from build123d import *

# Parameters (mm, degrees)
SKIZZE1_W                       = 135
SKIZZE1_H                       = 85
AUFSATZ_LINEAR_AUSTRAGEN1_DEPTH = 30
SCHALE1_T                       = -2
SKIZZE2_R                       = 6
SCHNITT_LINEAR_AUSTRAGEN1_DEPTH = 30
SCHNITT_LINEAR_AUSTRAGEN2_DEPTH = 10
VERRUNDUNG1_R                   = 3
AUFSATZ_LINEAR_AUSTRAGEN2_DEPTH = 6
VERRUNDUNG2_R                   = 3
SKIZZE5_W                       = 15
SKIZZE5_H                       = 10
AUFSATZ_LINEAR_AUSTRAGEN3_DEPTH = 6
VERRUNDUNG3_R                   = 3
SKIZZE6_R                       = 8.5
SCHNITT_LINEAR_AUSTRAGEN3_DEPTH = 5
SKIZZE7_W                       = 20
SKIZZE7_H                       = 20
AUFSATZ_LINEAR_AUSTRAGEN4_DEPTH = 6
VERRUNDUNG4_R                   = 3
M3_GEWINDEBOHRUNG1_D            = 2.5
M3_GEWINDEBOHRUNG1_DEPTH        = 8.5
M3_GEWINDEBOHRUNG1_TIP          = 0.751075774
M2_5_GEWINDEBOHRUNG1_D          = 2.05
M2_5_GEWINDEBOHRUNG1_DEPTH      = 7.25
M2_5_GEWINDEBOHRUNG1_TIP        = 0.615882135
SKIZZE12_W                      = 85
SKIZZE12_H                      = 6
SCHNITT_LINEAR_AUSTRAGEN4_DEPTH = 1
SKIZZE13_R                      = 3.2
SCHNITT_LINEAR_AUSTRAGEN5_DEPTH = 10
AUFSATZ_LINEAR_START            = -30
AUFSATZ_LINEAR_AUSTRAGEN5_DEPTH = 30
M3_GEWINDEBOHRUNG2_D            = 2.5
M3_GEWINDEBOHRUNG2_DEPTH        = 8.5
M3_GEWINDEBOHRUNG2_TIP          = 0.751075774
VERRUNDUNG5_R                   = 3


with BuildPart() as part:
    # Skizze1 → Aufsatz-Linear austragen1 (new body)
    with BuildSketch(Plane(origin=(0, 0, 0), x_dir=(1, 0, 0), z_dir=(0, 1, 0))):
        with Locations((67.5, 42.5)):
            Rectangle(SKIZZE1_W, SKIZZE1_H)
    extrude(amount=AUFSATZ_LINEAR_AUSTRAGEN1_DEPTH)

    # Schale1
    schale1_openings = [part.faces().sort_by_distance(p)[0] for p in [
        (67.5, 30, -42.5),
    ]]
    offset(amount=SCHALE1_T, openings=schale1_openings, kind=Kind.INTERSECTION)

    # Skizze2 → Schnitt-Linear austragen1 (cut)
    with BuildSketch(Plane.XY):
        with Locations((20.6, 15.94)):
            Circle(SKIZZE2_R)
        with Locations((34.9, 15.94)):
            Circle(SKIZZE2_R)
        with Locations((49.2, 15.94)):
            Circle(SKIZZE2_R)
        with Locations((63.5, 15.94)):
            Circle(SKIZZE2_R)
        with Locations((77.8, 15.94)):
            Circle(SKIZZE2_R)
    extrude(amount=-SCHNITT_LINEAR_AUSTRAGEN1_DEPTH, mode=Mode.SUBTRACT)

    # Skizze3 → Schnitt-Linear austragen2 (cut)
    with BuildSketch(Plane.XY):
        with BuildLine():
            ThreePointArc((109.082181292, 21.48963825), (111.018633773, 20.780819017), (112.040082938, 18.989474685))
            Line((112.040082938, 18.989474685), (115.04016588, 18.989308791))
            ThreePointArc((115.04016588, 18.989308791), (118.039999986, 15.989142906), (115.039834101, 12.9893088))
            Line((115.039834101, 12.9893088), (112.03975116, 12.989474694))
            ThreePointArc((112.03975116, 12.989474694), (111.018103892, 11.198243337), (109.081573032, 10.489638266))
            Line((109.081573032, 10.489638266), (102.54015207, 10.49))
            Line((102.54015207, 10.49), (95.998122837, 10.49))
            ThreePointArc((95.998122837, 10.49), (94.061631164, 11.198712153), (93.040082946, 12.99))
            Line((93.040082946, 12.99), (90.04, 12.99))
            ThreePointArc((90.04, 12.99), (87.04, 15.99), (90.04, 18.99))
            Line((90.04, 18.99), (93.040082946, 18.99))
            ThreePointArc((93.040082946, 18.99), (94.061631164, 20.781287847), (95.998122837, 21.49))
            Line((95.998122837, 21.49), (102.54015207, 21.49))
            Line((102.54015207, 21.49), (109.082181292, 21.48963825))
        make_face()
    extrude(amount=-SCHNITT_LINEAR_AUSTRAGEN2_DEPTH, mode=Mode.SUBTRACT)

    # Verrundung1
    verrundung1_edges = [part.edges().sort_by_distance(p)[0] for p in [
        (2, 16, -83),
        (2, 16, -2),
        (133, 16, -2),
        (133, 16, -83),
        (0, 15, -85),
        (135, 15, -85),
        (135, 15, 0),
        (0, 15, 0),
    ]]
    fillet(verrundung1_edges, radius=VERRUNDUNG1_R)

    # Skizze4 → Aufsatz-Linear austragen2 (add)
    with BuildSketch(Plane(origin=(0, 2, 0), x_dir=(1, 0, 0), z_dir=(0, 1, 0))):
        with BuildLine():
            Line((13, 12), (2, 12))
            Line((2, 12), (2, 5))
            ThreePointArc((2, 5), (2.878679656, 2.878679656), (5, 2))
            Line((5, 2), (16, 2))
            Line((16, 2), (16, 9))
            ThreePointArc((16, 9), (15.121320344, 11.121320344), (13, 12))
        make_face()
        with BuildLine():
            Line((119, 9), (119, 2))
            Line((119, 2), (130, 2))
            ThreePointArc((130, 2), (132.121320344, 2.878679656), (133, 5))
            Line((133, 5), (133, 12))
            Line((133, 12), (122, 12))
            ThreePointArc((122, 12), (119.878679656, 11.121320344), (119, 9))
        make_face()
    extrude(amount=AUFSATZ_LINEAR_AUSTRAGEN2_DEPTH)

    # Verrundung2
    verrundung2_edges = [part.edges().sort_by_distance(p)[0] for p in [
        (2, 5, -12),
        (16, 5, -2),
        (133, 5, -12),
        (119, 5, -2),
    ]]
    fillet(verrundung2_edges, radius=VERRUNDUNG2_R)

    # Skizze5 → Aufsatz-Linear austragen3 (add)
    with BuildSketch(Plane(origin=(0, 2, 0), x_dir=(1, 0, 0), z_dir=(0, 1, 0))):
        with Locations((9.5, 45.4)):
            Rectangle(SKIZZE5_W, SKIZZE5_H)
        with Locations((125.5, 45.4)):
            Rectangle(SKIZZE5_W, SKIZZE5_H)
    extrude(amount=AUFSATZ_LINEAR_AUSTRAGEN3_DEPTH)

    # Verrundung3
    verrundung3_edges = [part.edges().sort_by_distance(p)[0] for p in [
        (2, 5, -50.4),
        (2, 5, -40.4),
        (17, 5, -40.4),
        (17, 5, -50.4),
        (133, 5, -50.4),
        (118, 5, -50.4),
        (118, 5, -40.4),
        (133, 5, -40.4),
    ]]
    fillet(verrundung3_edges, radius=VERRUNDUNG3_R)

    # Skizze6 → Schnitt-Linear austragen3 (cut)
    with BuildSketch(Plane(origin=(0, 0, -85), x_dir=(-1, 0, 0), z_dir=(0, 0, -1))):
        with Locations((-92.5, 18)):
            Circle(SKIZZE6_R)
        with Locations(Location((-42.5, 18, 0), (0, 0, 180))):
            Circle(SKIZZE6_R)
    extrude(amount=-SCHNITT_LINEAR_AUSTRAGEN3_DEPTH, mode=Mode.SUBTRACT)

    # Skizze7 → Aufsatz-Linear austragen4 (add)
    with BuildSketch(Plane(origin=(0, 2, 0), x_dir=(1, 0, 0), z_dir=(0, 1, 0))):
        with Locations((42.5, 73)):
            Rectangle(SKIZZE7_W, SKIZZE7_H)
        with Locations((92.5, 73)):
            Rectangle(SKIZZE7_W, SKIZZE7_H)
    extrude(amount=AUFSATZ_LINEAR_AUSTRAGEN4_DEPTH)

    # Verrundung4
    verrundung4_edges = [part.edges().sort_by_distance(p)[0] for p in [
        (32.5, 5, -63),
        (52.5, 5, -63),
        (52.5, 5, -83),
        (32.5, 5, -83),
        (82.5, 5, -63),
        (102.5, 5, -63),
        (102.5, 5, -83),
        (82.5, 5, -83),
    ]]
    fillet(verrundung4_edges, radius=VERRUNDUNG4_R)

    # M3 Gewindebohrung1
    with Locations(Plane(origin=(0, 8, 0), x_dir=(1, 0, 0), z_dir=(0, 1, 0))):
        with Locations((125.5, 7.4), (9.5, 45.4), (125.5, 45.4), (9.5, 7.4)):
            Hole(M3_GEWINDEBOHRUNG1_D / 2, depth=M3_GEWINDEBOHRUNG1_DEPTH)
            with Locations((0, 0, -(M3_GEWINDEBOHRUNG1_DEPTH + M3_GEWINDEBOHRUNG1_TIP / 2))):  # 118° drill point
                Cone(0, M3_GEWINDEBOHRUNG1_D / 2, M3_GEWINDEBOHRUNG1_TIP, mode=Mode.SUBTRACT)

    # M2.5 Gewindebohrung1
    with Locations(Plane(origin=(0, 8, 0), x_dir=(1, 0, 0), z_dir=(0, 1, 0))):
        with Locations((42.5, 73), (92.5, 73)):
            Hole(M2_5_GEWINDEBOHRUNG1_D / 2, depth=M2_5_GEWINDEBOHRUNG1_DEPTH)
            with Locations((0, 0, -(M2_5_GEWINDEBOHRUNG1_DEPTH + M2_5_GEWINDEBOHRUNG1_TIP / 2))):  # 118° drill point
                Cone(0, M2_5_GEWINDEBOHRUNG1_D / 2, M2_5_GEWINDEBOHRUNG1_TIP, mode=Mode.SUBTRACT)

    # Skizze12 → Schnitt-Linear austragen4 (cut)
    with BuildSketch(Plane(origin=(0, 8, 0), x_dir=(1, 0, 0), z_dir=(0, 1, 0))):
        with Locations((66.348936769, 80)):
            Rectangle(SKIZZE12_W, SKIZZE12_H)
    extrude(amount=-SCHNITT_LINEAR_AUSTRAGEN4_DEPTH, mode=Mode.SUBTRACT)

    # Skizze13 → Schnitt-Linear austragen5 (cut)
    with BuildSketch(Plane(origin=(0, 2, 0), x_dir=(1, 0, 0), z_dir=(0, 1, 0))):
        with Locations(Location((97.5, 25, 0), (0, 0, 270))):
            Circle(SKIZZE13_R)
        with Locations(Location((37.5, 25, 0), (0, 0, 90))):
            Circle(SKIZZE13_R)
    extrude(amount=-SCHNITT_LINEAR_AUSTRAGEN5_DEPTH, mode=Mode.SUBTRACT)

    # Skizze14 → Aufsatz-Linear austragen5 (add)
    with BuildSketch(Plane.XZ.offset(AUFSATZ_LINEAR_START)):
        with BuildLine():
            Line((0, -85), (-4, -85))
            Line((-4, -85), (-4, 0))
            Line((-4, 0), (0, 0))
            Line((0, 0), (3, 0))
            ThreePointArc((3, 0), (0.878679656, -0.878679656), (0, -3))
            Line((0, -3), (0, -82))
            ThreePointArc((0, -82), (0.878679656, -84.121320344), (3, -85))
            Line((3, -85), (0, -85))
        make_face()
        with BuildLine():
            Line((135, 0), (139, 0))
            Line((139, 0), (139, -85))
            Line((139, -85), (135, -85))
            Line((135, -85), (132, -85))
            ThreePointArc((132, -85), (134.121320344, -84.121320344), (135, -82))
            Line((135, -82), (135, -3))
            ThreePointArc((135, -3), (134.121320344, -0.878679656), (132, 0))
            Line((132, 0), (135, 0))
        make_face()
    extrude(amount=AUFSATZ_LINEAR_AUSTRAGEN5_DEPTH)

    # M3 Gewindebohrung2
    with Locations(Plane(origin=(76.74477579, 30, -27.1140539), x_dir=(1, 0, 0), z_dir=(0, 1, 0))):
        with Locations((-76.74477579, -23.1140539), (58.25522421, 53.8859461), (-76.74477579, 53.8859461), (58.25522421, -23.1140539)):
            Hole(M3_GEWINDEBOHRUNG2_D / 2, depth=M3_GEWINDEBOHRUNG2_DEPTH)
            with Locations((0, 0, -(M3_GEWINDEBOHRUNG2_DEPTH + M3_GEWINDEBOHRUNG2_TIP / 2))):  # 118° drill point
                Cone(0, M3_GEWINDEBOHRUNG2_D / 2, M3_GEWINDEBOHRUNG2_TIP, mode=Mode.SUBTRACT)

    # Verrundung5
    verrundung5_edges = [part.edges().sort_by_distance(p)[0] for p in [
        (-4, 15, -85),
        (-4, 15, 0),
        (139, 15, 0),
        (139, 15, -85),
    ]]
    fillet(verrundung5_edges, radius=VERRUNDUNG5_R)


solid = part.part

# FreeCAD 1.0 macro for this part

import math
import FreeCAD as App
import Part
import Sketcher
Q = App.Units.Quantity


def edges_at(feature, points):
    """Names of the edges that pass closest to the given points."""
    edges = feature.Shape.Edges
    near = lambda p: min(range(len(edges)), key=lambda i: edges[i].distToShape(Part.Vertex(*p))[0])
    return sorted({f"Edge{near(p) + 1}" for p in points})


def faces_at(feature, points):
    """Names of the faces that lie closest to the given points."""
    faces = feature.Shape.Faces
    near = lambda p: min(range(len(faces)), key=lambda i: faces[i].distToShape(Part.Vertex(*p))[0])
    return sorted({f"Face{near(p) + 1}" for p in points})


def add_polygon(sketch, points):
    """Adds a closed chain of lines whose ends are joined by coincident constraints."""
    first, n = sketch.GeometryCount, len(points)
    for a, b in zip(points, points[1:] + points[:1]):
        sketch.addGeometry(Part.LineSegment(App.Vector(*a, 0), App.Vector(*b, 0)), False)
    for i in range(n):
        sketch.addConstraint(Sketcher.Constraint("Coincident", first + i, 2, first + (i + 1) % n, 1))

doc = App.newDocument("Part")
body = doc.addObject("PartDesign::Body", "Body")

sketch1 = doc.addObject("Sketcher::SketchObject", "Sketch")
body.addObject(sketch1)
sketch1.AttachmentSupport = (doc.XZ_Plane, [""])
sketch1.MapMode = "FlatFace"
add_polygon(sketch1, [(0, -85), (0, 0), (135, 0), (135, -85)])
sketch1.addConstraint(Sketcher.Constraint("Vertical", 0))
sketch1.addConstraint(Sketcher.Constraint("Horizontal", 1))
sketch1.addConstraint(Sketcher.Constraint("Vertical", 2))
sketch1.addConstraint(Sketcher.Constraint("Horizontal", 3))
sketch1.addConstraint(Sketcher.Constraint("Coincident", 0, 2, -1, 1))
sketch1.addConstraint(Sketcher.Constraint("DistanceX", 1, 1, 1, 2, Q("135 mm")))
sketch1.addConstraint(Sketcher.Constraint("DistanceY", 0, 1, 0, 2, Q("85 mm")))
pad1 = doc.addObject("PartDesign::Pad", "Pad")
body.addObject(pad1)
pad1.Profile = sketch1
pad1.Length = 30
pad1.Reversed = True
doc.recompute()

thickness = doc.addObject("PartDesign::Thickness", "Thickness")
body.addObject(thickness)
thickness.Base = (pad1, faces_at(pad1, [(67.5, 30, -42.5)]))
thickness.Value = 2
thickness.Reversed = True
thickness.Join = "Intersection"

sketch2 = doc.addObject("Sketcher::SketchObject", "Sketch001")
body.addObject(sketch2)
sketch2.AttachmentSupport = (doc.XY_Plane, [""])
sketch2.MapMode = "FlatFace"
sketch2.addGeometry(Part.Circle(App.Vector(21, 16, 0), App.Vector(0, 0, 1), 6), False)
sketch2.addGeometry(Part.Circle(App.Vector(35, 16, 0), App.Vector(0, 0, 1), 6), False)
sketch2.addGeometry(Part.Circle(App.Vector(49, 16, 0), App.Vector(0, 0, 1), 6), False)
sketch2.addGeometry(Part.Circle(App.Vector(64, 16, 0), App.Vector(0, 0, 1), 6), False)
sketch2.addGeometry(Part.Circle(App.Vector(78, 16, 0), App.Vector(0, 0, 1), 6), False)
sketch2.addConstraint(Sketcher.Constraint("Equal", 0, 1))
sketch2.addConstraint(Sketcher.Constraint("Equal", 1, 2))
sketch2.addConstraint(Sketcher.Constraint("Equal", 2, 3))
sketch2.addConstraint(Sketcher.Constraint("Equal", 3, 4))
sketch2.addConstraint(Sketcher.Constraint("Horizontal", 0, 3, 1, 3))
sketch2.addConstraint(Sketcher.Constraint("Horizontal", 1, 3, 2, 3))
sketch2.addConstraint(Sketcher.Constraint("Horizontal", 2, 3, 3, 3))
sketch2.addConstraint(Sketcher.Constraint("Horizontal", 3, 3, 4, 3))
sketch2.addConstraint(Sketcher.Constraint("Diameter", 0, Q("12 mm")))
sketch2.addConstraint(Sketcher.Constraint("DistanceX", -1, 1, 0, 3, Q("20.6 mm")))
sketch2.addConstraint(Sketcher.Constraint("DistanceX", -1, 1, 1, 3, Q("34.9 mm")))
sketch2.addConstraint(Sketcher.Constraint("DistanceX", -1, 1, 2, 3, Q("49.2 mm")))
sketch2.addConstraint(Sketcher.Constraint("DistanceX", -1, 1, 3, 3, Q("63.5 mm")))
sketch2.addConstraint(Sketcher.Constraint("DistanceX", -1, 1, 4, 3, Q("77.8 mm")))
sketch2.addConstraint(Sketcher.Constraint("DistanceY", -1, 1, 0, 3, Q("15.94 mm")))
pocket1 = doc.addObject("PartDesign::Pocket", "Pocket")
body.addObject(pocket1)
pocket1.Profile = sketch2
pocket1.Length = 30

sketch3 = doc.addObject("Sketcher::SketchObject", "Sketch002")
body.addObject(sketch3)
sketch3.AttachmentSupport = (doc.XY_Plane, [""])
sketch3.MapMode = "FlatFace"
sketch3.addGeometry(Part.ArcOfCircle(Part.Circle(App.Vector(109.1, 18.5, 0), App.Vector(0, 0, 1), 3), math.radians(10), math.radians(90)), False)
sketch3.addGeometry(Part.LineSegment(App.Vector(109.1, 21.5, 0), App.Vector(102.5, 21.5, 0)), False)
sketch3.addGeometry(Part.LineSegment(App.Vector(102.5, 21.5, 0), App.Vector(96, 21.5, 0)), False)
sketch3.addGeometry(Part.ArcOfCircle(Part.Circle(App.Vector(96, 18.5, 0), App.Vector(0, 0, 1), 3), math.radians(90), math.radians(170)), False)
sketch3.addGeometry(Part.LineSegment(App.Vector(93, 19, 0), App.Vector(90, 19, 0)), False)
sketch3.addGeometry(Part.ArcOfCircle(Part.Circle(App.Vector(90, 16, 0), App.Vector(0, 0, 1), 3), math.radians(90), math.radians(270)), False)
sketch3.addGeometry(Part.LineSegment(App.Vector(90, 13, 0), App.Vector(93, 13, 0)), False)
sketch3.addGeometry(Part.ArcOfCircle(Part.Circle(App.Vector(96, 13.5, 0), App.Vector(0, 0, 1), 3), math.radians(-170), math.radians(-90)), False)
sketch3.addGeometry(Part.LineSegment(App.Vector(96, 10.5, 0), App.Vector(102.5, 10.5, 0)), False)
sketch3.addGeometry(Part.LineSegment(App.Vector(102.5, 10.5, 0), App.Vector(109.1, 10.5, 0)), False)
sketch3.addGeometry(Part.ArcOfCircle(Part.Circle(App.Vector(109.1, 13.5, 0), App.Vector(0, 0, 1), 3), math.radians(-90), math.radians(-10)), False)
sketch3.addGeometry(Part.LineSegment(App.Vector(112, 13, 0), App.Vector(115, 13, 0)), False)
sketch3.addGeometry(Part.ArcOfCircle(Part.Circle(App.Vector(115, 16, 0), App.Vector(0, 0, 1), 3), math.radians(-90), math.radians(90)), False)
sketch3.addGeometry(Part.LineSegment(App.Vector(115, 19, 0), App.Vector(112, 19, 0)), False)
sketch3.addConstraint(Sketcher.Constraint("Tangent", 0, 2, 1, 1))
sketch3.addConstraint(Sketcher.Constraint("Coincident", 1, 2, 2, 1))
sketch3.addConstraint(Sketcher.Constraint("Tangent", 2, 2, 3, 1))
sketch3.addConstraint(Sketcher.Constraint("Coincident", 3, 2, 4, 1))
sketch3.addConstraint(Sketcher.Constraint("Tangent", 4, 2, 5, 1))
sketch3.addConstraint(Sketcher.Constraint("Tangent", 5, 2, 6, 1))
sketch3.addConstraint(Sketcher.Constraint("Coincident", 6, 2, 7, 1))
sketch3.addConstraint(Sketcher.Constraint("Tangent", 7, 2, 8, 1))
sketch3.addConstraint(Sketcher.Constraint("Coincident", 8, 2, 9, 1))
sketch3.addConstraint(Sketcher.Constraint("Tangent", 9, 2, 10, 1))
sketch3.addConstraint(Sketcher.Constraint("Coincident", 10, 2, 11, 1))
sketch3.addConstraint(Sketcher.Constraint("Tangent", 11, 2, 12, 1))
sketch3.addConstraint(Sketcher.Constraint("Tangent", 12, 2, 13, 1))
sketch3.addConstraint(Sketcher.Constraint("Coincident", 13, 2, 0, 1))
sketch3.addConstraint(Sketcher.Constraint("Horizontal", 2))
sketch3.addConstraint(Sketcher.Constraint("Horizontal", 4))
sketch3.addConstraint(Sketcher.Constraint("Horizontal", 6))
sketch3.addConstraint(Sketcher.Constraint("Horizontal", 8))
sketch3.addConstraint(Sketcher.Constraint("Equal", 0, 3))
sketch3.addConstraint(Sketcher.Constraint("Equal", 3, 5))
sketch3.addConstraint(Sketcher.Constraint("Equal", 5, 7))
sketch3.addConstraint(Sketcher.Constraint("Equal", 7, 10))
sketch3.addConstraint(Sketcher.Constraint("Equal", 10, 12))
sketch3.addConstraint(Sketcher.Constraint("Parallel", 1, 9))
sketch3.addConstraint(Sketcher.Constraint("Parallel", 9, 11))
sketch3.addConstraint(Sketcher.Constraint("Parallel", 11, 13))
sketch3.addConstraint(Sketcher.Constraint("Vertical", 3, 3, 7, 3))
sketch3.addConstraint(Sketcher.Constraint("Vertical", 3, 2, 6, 2))
sketch3.addConstraint(Sketcher.Constraint("Vertical", 1, 2, 8, 2))
sketch3.addConstraint(Sketcher.Constraint("Equal", 11, 13))
sketch3.addConstraint(Sketcher.Constraint("Radius", 0, Q("3 mm")))
sketch3.addConstraint(Sketcher.Constraint("DistanceY", 7, 3, 3, 3, Q("5 mm")))
sketch3.addConstraint(Sketcher.Constraint("DistanceX", 5, 3, 12, 3, Q("25 mm")))
sketch3.addConstraint(Sketcher.Constraint("DistanceY", -1, 1, 3, 3, Q("18.49 mm")))
sketch3.addConstraint(Sketcher.Constraint("DistanceX", -1, 1, 5, 3, Q("90.04 mm")))
sketch3.addConstraint(Sketcher.Constraint("DistanceX", 2, 2, 2, 1, Q("6.542029 mm")))
sketch3.addConstraint(Sketcher.Constraint("DistanceX", 0, 2, 13, 2, Q("2.957902 mm")))
sketch3.addConstraint(Sketcher.Constraint("Distance", 1, Q("6.542029 mm")))
sketch3.addConstraint(Sketcher.Constraint("Distance", 9, Q("6.541421 mm")))
sketch3.addConstraint(Sketcher.Constraint("DistanceX", 4, 2, 4, 1, Q("3.000083 mm")))
pocket2 = doc.addObject("PartDesign::Pocket", "Pocket001")
body.addObject(pocket2)
pocket2.Profile = sketch3
pocket2.Length = 10
doc.recompute()

fillet = doc.addObject("PartDesign::Fillet", "Fillet")
body.addObject(fillet)
fillet.Base = (pocket2, edges_at(pocket2, [
    (2, 16, -83),
    (2, 16, -2),
    (133, 16, -2),
    (133, 16, -83),
    (0, 15, -85),
    (135, 15, -85),
    (135, 15, 0),
    (0, 15, 0),
]))
fillet.Radius = 3

sketch4 = doc.addObject("Sketcher::SketchObject", "Sketch003")
body.addObject(sketch4)
sketch4.AttachmentSupport = (doc.XZ_Plane, [""])
sketch4.MapMode = "FlatFace"
sketch4.AttachmentOffset = App.Placement(App.Vector(0, 0, -2), App.Rotation())
sketch4.addGeometry(Part.LineSegment(App.Vector(13, -12, 0), App.Vector(2, -12, 0)), False)
sketch4.addGeometry(Part.LineSegment(App.Vector(2, -12, 0), App.Vector(2, -5, 0)), False)
sketch4.addGeometry(Part.ArcOfCircle(Part.Circle(App.Vector(5, -5, 0), App.Vector(0, 0, 1), 3), math.radians(90), math.radians(180)), False)
sketch4.addGeometry(Part.LineSegment(App.Vector(5, -2, 0), App.Vector(16, -2, 0)), False)
sketch4.addGeometry(Part.LineSegment(App.Vector(16, -2, 0), App.Vector(16, -9, 0)), False)
sketch4.addGeometry(Part.ArcOfCircle(Part.Circle(App.Vector(13, -9, 0), App.Vector(0, 0, 1), 3), math.radians(-90), math.radians(0)), False)
sketch4.addGeometry(Part.LineSegment(App.Vector(119, -9, 0), App.Vector(119, -2, 0)), False)
sketch4.addGeometry(Part.LineSegment(App.Vector(119, -2, 0), App.Vector(130, -2, 0)), False)
sketch4.addGeometry(Part.ArcOfCircle(Part.Circle(App.Vector(130, -5, 0), App.Vector(0, 0, 1), 3), math.radians(0), math.radians(90)), False)
sketch4.addGeometry(Part.LineSegment(App.Vector(133, -5, 0), App.Vector(133, -12, 0)), False)
sketch4.addGeometry(Part.LineSegment(App.Vector(133, -12, 0), App.Vector(122, -12, 0)), False)
sketch4.addGeometry(Part.ArcOfCircle(Part.Circle(App.Vector(122, -9, 0), App.Vector(0, 0, 1), 3), math.radians(180), math.radians(270)), False)
sketch4.addConstraint(Sketcher.Constraint("Coincident", 0, 2, 1, 1))
sketch4.addConstraint(Sketcher.Constraint("Tangent", 1, 2, 2, 2))
sketch4.addConstraint(Sketcher.Constraint("Tangent", 2, 1, 3, 1))
sketch4.addConstraint(Sketcher.Constraint("Coincident", 3, 2, 4, 1))
sketch4.addConstraint(Sketcher.Constraint("Tangent", 4, 2, 5, 2))
sketch4.addConstraint(Sketcher.Constraint("Tangent", 5, 1, 0, 1))
sketch4.addConstraint(Sketcher.Constraint("Coincident", 6, 2, 7, 1))
sketch4.addConstraint(Sketcher.Constraint("Tangent", 7, 2, 8, 2))
sketch4.addConstraint(Sketcher.Constraint("Tangent", 8, 1, 9, 1))
sketch4.addConstraint(Sketcher.Constraint("Coincident", 9, 2, 10, 1))
sketch4.addConstraint(Sketcher.Constraint("Tangent", 10, 2, 11, 2))
sketch4.addConstraint(Sketcher.Constraint("Tangent", 11, 1, 6, 1))
sketch4.addConstraint(Sketcher.Constraint("Horizontal", 0))
sketch4.addConstraint(Sketcher.Constraint("Vertical", 1))
sketch4.addConstraint(Sketcher.Constraint("Horizontal", 3))
sketch4.addConstraint(Sketcher.Constraint("Vertical", 4))
sketch4.addConstraint(Sketcher.Constraint("Vertical", 6))
sketch4.addConstraint(Sketcher.Constraint("Horizontal", 7))
sketch4.addConstraint(Sketcher.Constraint("Vertical", 9))
sketch4.addConstraint(Sketcher.Constraint("Horizontal", 10))
sketch4.addConstraint(Sketcher.Constraint("Equal", 2, 5))
sketch4.addConstraint(Sketcher.Constraint("Equal", 5, 8))
sketch4.addConstraint(Sketcher.Constraint("Equal", 8, 11))
sketch4.addConstraint(Sketcher.Constraint("Horizontal", 2, 3, 8, 3))
sketch4.addConstraint(Sketcher.Constraint("Horizontal", 5, 3, 11, 3))
sketch4.addConstraint(Sketcher.Constraint("Equal", 3, 7))
sketch4.addConstraint(Sketcher.Constraint("Radius", 2, Q("3 mm")))
sketch4.addConstraint(Sketcher.Constraint("DistanceX", 0, 2, 0, 1, Q("11 mm")))
sketch4.addConstraint(Sketcher.Constraint("DistanceY", 1, 1, 1, 2, Q("7 mm")))
sketch4.addConstraint(Sketcher.Constraint("DistanceX", -1, 1, 2, 3, Q("5 mm")))
sketch4.addConstraint(Sketcher.Constraint("DistanceY", 2, 3, -1, 1, Q("5 mm")))
sketch4.addConstraint(Sketcher.Constraint("DistanceX", -1, 1, 8, 3, Q("130 mm")))
pad2 = doc.addObject("PartDesign::Pad", "Pad001")
body.addObject(pad2)
pad2.Profile = sketch4
pad2.Length = 6
pad2.Reversed = True
doc.recompute()

fillet2 = doc.addObject("PartDesign::Fillet", "Fillet001")
body.addObject(fillet2)
fillet2.Base = (pad2, edges_at(pad2, [
    (2, 5, -12),
    (16, 5, -2),
    (133, 5, -12),
    (119, 5, -2),
]))
fillet2.Radius = 3

sketch5 = doc.addObject("Sketcher::SketchObject", "Sketch004")
body.addObject(sketch5)
sketch5.AttachmentSupport = (doc.XZ_Plane, [""])
sketch5.MapMode = "FlatFace"
sketch5.AttachmentOffset = App.Placement(App.Vector(0, 0, -2), App.Rotation())
add_polygon(sketch5, [(2, -50), (2, -40), (17, -40), (17, -50)])
add_polygon(sketch5, [(118, -50), (118, -40), (133, -40), (133, -50)])
sketch5.addConstraint(Sketcher.Constraint("Vertical", 0))
sketch5.addConstraint(Sketcher.Constraint("Horizontal", 1))
sketch5.addConstraint(Sketcher.Constraint("Vertical", 2))
sketch5.addConstraint(Sketcher.Constraint("Horizontal", 3))
sketch5.addConstraint(Sketcher.Constraint("Vertical", 4))
sketch5.addConstraint(Sketcher.Constraint("Horizontal", 5))
sketch5.addConstraint(Sketcher.Constraint("Vertical", 6))
sketch5.addConstraint(Sketcher.Constraint("Horizontal", 7))
sketch5.addConstraint(Sketcher.Constraint("Horizontal", 1, 2, 4, 2))
sketch5.addConstraint(Sketcher.Constraint("Horizontal", 3, 2, 6, 2))
sketch5.addConstraint(Sketcher.Constraint("Equal", 3, 5))
sketch5.addConstraint(Sketcher.Constraint("DistanceX", 1, 1, 1, 2, Q("15 mm")))
sketch5.addConstraint(Sketcher.Constraint("DistanceY", 0, 1, 0, 2, Q("10 mm")))
sketch5.addConstraint(Sketcher.Constraint("DistanceX", -1, 1, 0, 2, Q("2 mm")))
sketch5.addConstraint(Sketcher.Constraint("DistanceX", -1, 1, 4, 2, Q("118 mm")))
sketch5.addConstraint(Sketcher.Constraint("DistanceY", 0, 2, -1, 1, Q("40.4 mm")))
pad3 = doc.addObject("PartDesign::Pad", "Pad002")
body.addObject(pad3)
pad3.Profile = sketch5
pad3.Length = 6
pad3.Reversed = True
doc.recompute()

fillet3 = doc.addObject("PartDesign::Fillet", "Fillet002")
body.addObject(fillet3)
fillet3.Base = (pad3, edges_at(pad3, [
    (2, 5, -50.4),
    (2, 5, -40.4),
    (17, 5, -40.4),
    (17, 5, -50.4),
    (133, 5, -50.4),
    (118, 5, -50.4),
    (118, 5, -40.4),
    (133, 5, -40.4),
]))
fillet3.Radius = 3

sketch6 = doc.addObject("Sketcher::SketchObject", "Sketch005")
body.addObject(sketch6)
sketch6.AttachmentSupport = (doc.XY_Plane, [""])
sketch6.MapMode = "FlatFace"
sketch6.AttachmentOffset = App.Placement(App.Vector(0, 0, -85), App.Rotation())
sketch6.addGeometry(Part.Circle(App.Vector(92, 18, 0), App.Vector(0, 0, 1), 8), False)
sketch6.addGeometry(Part.Circle(App.Vector(42, 18, 0), App.Vector(0, 0, 1), 8), False)
sketch6.addConstraint(Sketcher.Constraint("Equal", 0, 1))
sketch6.addConstraint(Sketcher.Constraint("Horizontal", 0, 3, 1, 3))
sketch6.addConstraint(Sketcher.Constraint("Diameter", 0, Q("17 mm")))
sketch6.addConstraint(Sketcher.Constraint("DistanceY", -1, 1, 0, 3, Q("18 mm")))
sketch6.addConstraint(Sketcher.Constraint("DistanceX", 1, 3, 0, 3, Q("50 mm")))
sketch6.addConstraint(Sketcher.Constraint("DistanceX", -1, 1, 0, 3, Q("92.5 mm")))
pocket3 = doc.addObject("PartDesign::Pocket", "Pocket002")
body.addObject(pocket3)
pocket3.Profile = sketch6
pocket3.Length = 5
pocket3.Reversed = True

sketch7 = doc.addObject("Sketcher::SketchObject", "Sketch006")
body.addObject(sketch7)
sketch7.AttachmentSupport = (doc.XZ_Plane, [""])
sketch7.MapMode = "FlatFace"
sketch7.AttachmentOffset = App.Placement(App.Vector(0, 0, -2), App.Rotation())
add_polygon(sketch7, [(32, -83), (32, -63), (52, -63), (52, -83)])
add_polygon(sketch7, [(82, -83), (82, -63), (102, -63), (102, -83)])
sketch7.addConstraint(Sketcher.Constraint("Vertical", 0))
sketch7.addConstraint(Sketcher.Constraint("Horizontal", 1))
sketch7.addConstraint(Sketcher.Constraint("Vertical", 2))
sketch7.addConstraint(Sketcher.Constraint("Horizontal", 3))
sketch7.addConstraint(Sketcher.Constraint("Vertical", 4))
sketch7.addConstraint(Sketcher.Constraint("Horizontal", 5))
sketch7.addConstraint(Sketcher.Constraint("Vertical", 6))
sketch7.addConstraint(Sketcher.Constraint("Horizontal", 7))
sketch7.addConstraint(Sketcher.Constraint("Horizontal", 1, 2, 4, 2))
sketch7.addConstraint(Sketcher.Constraint("Horizontal", 3, 2, 6, 2))
sketch7.addConstraint(Sketcher.Constraint("Equal", 3, 5))
sketch7.addConstraint(Sketcher.Constraint("Equal", 7, 0))
sketch7.addConstraint(Sketcher.Constraint("DistanceX", 1, 1, 1, 2, Q("20 mm")))
sketch7.addConstraint(Sketcher.Constraint("DistanceY", 0, 2, -1, 1, Q("63 mm")))
sketch7.addConstraint(Sketcher.Constraint("DistanceX", 1, 2, 4, 2, Q("30 mm")))
sketch7.addConstraint(Sketcher.Constraint("DistanceX", -1, 1, 0, 2, Q("32.5 mm")))
pad4 = doc.addObject("PartDesign::Pad", "Pad003")
body.addObject(pad4)
pad4.Profile = sketch7
pad4.Length = 6
pad4.Reversed = True
doc.recompute()

fillet4 = doc.addObject("PartDesign::Fillet", "Fillet003")
body.addObject(fillet4)
fillet4.Base = (pad4, edges_at(pad4, [
    (32.5, 5, -63),
    (52.5, 5, -63),
    (52.5, 5, -83),
    (32.5, 5, -83),
    (82.5, 5, -63),
    (102.5, 5, -63),
    (102.5, 5, -83),
    (82.5, 5, -83),
]))
fillet4.Radius = 3

sketch8 = doc.addObject("Sketcher::SketchObject", "Sketch007")
body.addObject(sketch8)
sketch8.AttachmentSupport = (doc.XZ_Plane, [""])
sketch8.MapMode = "FlatFace"
sketch8.AttachmentOffset = App.Placement(App.Vector(0, 0, -8), App.Rotation())
sketch8.addGeometry(Part.Circle(App.Vector(125.5, -7.4, 0), App.Vector(0, 0, 1), 1.2), False)
sketch8.addGeometry(Part.Circle(App.Vector(9.5, -45.4, 0), App.Vector(0, 0, 1), 1.2), False)
sketch8.addGeometry(Part.Circle(App.Vector(125.5, -45.4, 0), App.Vector(0, 0, 1), 1.2), False)
sketch8.addGeometry(Part.Circle(App.Vector(9.5, -7.4, 0), App.Vector(0, 0, 1), 1.2), False)
sketch8.addConstraint(Sketcher.Constraint("Equal", 0, 1))
sketch8.addConstraint(Sketcher.Constraint("Equal", 1, 2))
sketch8.addConstraint(Sketcher.Constraint("Equal", 2, 3))
sketch8.addConstraint(Sketcher.Constraint("Horizontal", 1, 3, 2, 3))
sketch8.addConstraint(Sketcher.Constraint("Horizontal", 0, 3, 3, 3))
sketch8.addConstraint(Sketcher.Constraint("Vertical", 0, 3, 2, 3))
sketch8.addConstraint(Sketcher.Constraint("Vertical", 1, 3, 3, 3))
sketch8.addConstraint(Sketcher.Constraint("Diameter", 0, Q("2.5 mm")))
sketch8.addConstraint(Sketcher.Constraint("DistanceX", 1, 3, 0, 3, Q("116 mm")))
sketch8.addConstraint(Sketcher.Constraint("DistanceY", 1, 3, 0, 3, Q("38 mm")))
sketch8.addConstraint(Sketcher.Constraint("DistanceX", -1, 1, 0, 3, Q("125.5 mm")))
sketch8.addConstraint(Sketcher.Constraint("DistanceY", 0, 3, -1, 1, Q("7.4 mm")))
doc.recompute()
hole = doc.addObject("PartDesign::Hole", "Hole")
body.addObject(hole)
hole.Profile = sketch8
hole.ThreadType = "None"
hole.Diameter = 2.5
hole.DepthType = "Dimension"
hole.Depth = 8.5
hole.DrillPoint = "Angled"
hole.DrillPointAngle = 118
hole.Reversed = True

sketch9 = doc.addObject("Sketcher::SketchObject", "Sketch008")
body.addObject(sketch9)
sketch9.AttachmentSupport = (doc.XZ_Plane, [""])
sketch9.MapMode = "FlatFace"
sketch9.AttachmentOffset = App.Placement(App.Vector(0, 0, -8), App.Rotation())
sketch9.addGeometry(Part.Circle(App.Vector(42.5, -73, 0), App.Vector(0, 0, 1), 1), False)
sketch9.addGeometry(Part.Circle(App.Vector(92.5, -73, 0), App.Vector(0, 0, 1), 1), False)
sketch9.addConstraint(Sketcher.Constraint("Equal", 0, 1))
sketch9.addConstraint(Sketcher.Constraint("Horizontal", 0, 3, 1, 3))
sketch9.addConstraint(Sketcher.Constraint("Diameter", 0, Q("2.05 mm")))
sketch9.addConstraint(Sketcher.Constraint("DistanceY", 0, 3, -1, 1, Q("73 mm")))
sketch9.addConstraint(Sketcher.Constraint("DistanceX", 0, 3, 1, 3, Q("50 mm")))
sketch9.addConstraint(Sketcher.Constraint("DistanceX", -1, 1, 0, 3, Q("42.5 mm")))
doc.recompute()
hole2 = doc.addObject("PartDesign::Hole", "Hole001")
body.addObject(hole2)
hole2.Profile = sketch9
hole2.ThreadType = "None"
hole2.Diameter = 2.05
hole2.DepthType = "Dimension"
hole2.Depth = 7.25
hole2.DrillPoint = "Angled"
hole2.DrillPointAngle = 118
hole2.Reversed = True

sketch10 = doc.addObject("Sketcher::SketchObject", "Sketch009")
body.addObject(sketch10)
sketch10.AttachmentSupport = (doc.XZ_Plane, [""])
sketch10.MapMode = "FlatFace"
sketch10.AttachmentOffset = App.Placement(App.Vector(0, 0, -8), App.Rotation())
add_polygon(sketch10, [(24, -83), (24, -77), (109, -77), (109, -83)])
sketch10.addConstraint(Sketcher.Constraint("Vertical", 0))
sketch10.addConstraint(Sketcher.Constraint("Horizontal", 1))
sketch10.addConstraint(Sketcher.Constraint("Vertical", 2))
sketch10.addConstraint(Sketcher.Constraint("Horizontal", 3))
sketch10.addConstraint(Sketcher.Constraint("DistanceX", 1, 1, 1, 2, Q("85 mm")))
sketch10.addConstraint(Sketcher.Constraint("DistanceY", 0, 1, 0, 2, Q("6 mm")))
sketch10.addConstraint(Sketcher.Constraint("DistanceY", 0, 2, -1, 1, Q("77 mm")))
sketch10.addConstraint(Sketcher.Constraint("DistanceX", -1, 1, 0, 2, Q("23.848937 mm")))
pocket4 = doc.addObject("PartDesign::Pocket", "Pocket003")
body.addObject(pocket4)
pocket4.Profile = sketch10
pocket4.Length = 1
pocket4.Reversed = True

sketch11 = doc.addObject("Sketcher::SketchObject", "Sketch010")
body.addObject(sketch11)
sketch11.AttachmentSupport = (doc.XZ_Plane, [""])
sketch11.MapMode = "FlatFace"
sketch11.AttachmentOffset = App.Placement(App.Vector(0, 0, -2), App.Rotation())
sketch11.addGeometry(Part.Circle(App.Vector(97.5, -25, 0), App.Vector(0, 0, 1), 3.2), False)
sketch11.addGeometry(Part.Circle(App.Vector(37.5, -25, 0), App.Vector(0, 0, 1), 3.2), False)
sketch11.addConstraint(Sketcher.Constraint("Equal", 0, 1))
sketch11.addConstraint(Sketcher.Constraint("Horizontal", 0, 3, 1, 3))
sketch11.addConstraint(Sketcher.Constraint("Diameter", 0, Q("6.4 mm")))
sketch11.addConstraint(Sketcher.Constraint("DistanceY", 0, 3, -1, 1, Q("25 mm")))
sketch11.addConstraint(Sketcher.Constraint("DistanceX", 1, 3, 0, 3, Q("60 mm")))
sketch11.addConstraint(Sketcher.Constraint("DistanceX", -1, 1, 0, 3, Q("97.5 mm")))
pocket5 = doc.addObject("PartDesign::Pocket", "Pocket004")
body.addObject(pocket5)
pocket5.Profile = sketch11
pocket5.Length = 10
pocket5.Reversed = True

sketch12 = doc.addObject("Sketcher::SketchObject", "Sketch011")
body.addObject(sketch12)
sketch12.AttachmentSupport = (doc.XZ_Plane, [""])
sketch12.MapMode = "FlatFace"
sketch12.AttachmentOffset = App.Placement(App.Vector(0, 0, -30), App.Rotation())
sketch12.addGeometry(Part.LineSegment(App.Vector(-4, 0, 0), App.Vector(-4, -85, 0)), False)
sketch12.addGeometry(Part.LineSegment(App.Vector(-4, -85, 0), App.Vector(3, -85, 0)), False)
sketch12.addGeometry(Part.ArcOfCircle(Part.Circle(App.Vector(3, -82, 0), App.Vector(0, 0, 1), 3), math.radians(180), math.radians(270)), False)
sketch12.addGeometry(Part.LineSegment(App.Vector(0, -82, 0), App.Vector(0, -3, 0)), False)
sketch12.addGeometry(Part.ArcOfCircle(Part.Circle(App.Vector(3, -3, 0), App.Vector(0, 0, 1), 3), math.radians(90), math.radians(180)), False)
sketch12.addGeometry(Part.LineSegment(App.Vector(3, 0, 0), App.Vector(-4, 0, 0)), False)
sketch12.addGeometry(Part.LineSegment(App.Vector(139, -85, 0), App.Vector(139, 0, 0)), False)
sketch12.addGeometry(Part.LineSegment(App.Vector(139, 0, 0), App.Vector(132, 0, 0)), False)
sketch12.addGeometry(Part.ArcOfCircle(Part.Circle(App.Vector(132, -3, 0), App.Vector(0, 0, 1), 3), math.radians(0), math.radians(90)), False)
sketch12.addGeometry(Part.LineSegment(App.Vector(135, -3, 0), App.Vector(135, -82, 0)), False)
sketch12.addGeometry(Part.ArcOfCircle(Part.Circle(App.Vector(132, -82, 0), App.Vector(0, 0, 1), 3), math.radians(-90), math.radians(0)), False)
sketch12.addGeometry(Part.LineSegment(App.Vector(132, -85, 0), App.Vector(139, -85, 0)), False)
sketch12.addConstraint(Sketcher.Constraint("Coincident", 0, 2, 1, 1))
sketch12.addConstraint(Sketcher.Constraint("Tangent", 1, 2, 2, 2))
sketch12.addConstraint(Sketcher.Constraint("Tangent", 2, 1, 3, 1))
sketch12.addConstraint(Sketcher.Constraint("Tangent", 3, 2, 4, 2))
sketch12.addConstraint(Sketcher.Constraint("Tangent", 4, 1, 5, 1))
sketch12.addConstraint(Sketcher.Constraint("Coincident", 5, 2, 0, 1))
sketch12.addConstraint(Sketcher.Constraint("Coincident", 6, 2, 7, 1))
sketch12.addConstraint(Sketcher.Constraint("Tangent", 7, 2, 8, 2))
sketch12.addConstraint(Sketcher.Constraint("Tangent", 8, 1, 9, 1))
sketch12.addConstraint(Sketcher.Constraint("Tangent", 9, 2, 10, 2))
sketch12.addConstraint(Sketcher.Constraint("Tangent", 10, 1, 11, 1))
sketch12.addConstraint(Sketcher.Constraint("Coincident", 11, 2, 6, 1))
sketch12.addConstraint(Sketcher.Constraint("Vertical", 0))
sketch12.addConstraint(Sketcher.Constraint("Horizontal", 1))
sketch12.addConstraint(Sketcher.Constraint("Vertical", 3))
sketch12.addConstraint(Sketcher.Constraint("Horizontal", 5))
sketch12.addConstraint(Sketcher.Constraint("Vertical", 6))
sketch12.addConstraint(Sketcher.Constraint("Horizontal", 7))
sketch12.addConstraint(Sketcher.Constraint("Vertical", 9))
sketch12.addConstraint(Sketcher.Constraint("Horizontal", 11))
sketch12.addConstraint(Sketcher.Constraint("Equal", 2, 4))
sketch12.addConstraint(Sketcher.Constraint("Equal", 4, 8))
sketch12.addConstraint(Sketcher.Constraint("Equal", 8, 10))
sketch12.addConstraint(Sketcher.Constraint("PointOnObject", 2, 1, -2))
sketch12.addConstraint(Sketcher.Constraint("PointOnObject", 4, 1, -1))
sketch12.addConstraint(Sketcher.Constraint("PointOnObject", 6, 2, -1))
sketch12.addConstraint(Sketcher.Constraint("Horizontal", 2, 3, 10, 3))
sketch12.addConstraint(Sketcher.Constraint("Equal", 5, 7))
sketch12.addConstraint(Sketcher.Constraint("Radius", 2, Q("3 mm")))
sketch12.addConstraint(Sketcher.Constraint("DistanceX", 1, 1, 1, 2, Q("7 mm")))
sketch12.addConstraint(Sketcher.Constraint("DistanceY", 0, 2, 0, 1, Q("85 mm")))
sketch12.addConstraint(Sketcher.Constraint("DistanceX", -1, 1, 8, 3, Q("132 mm")))
pad5 = doc.addObject("PartDesign::Pad", "Pad004")
body.addObject(pad5)
pad5.Profile = sketch12
pad5.Length = 30

sketch13 = doc.addObject("Sketcher::SketchObject", "Sketch012")
body.addObject(sketch13)
sketch13.AttachmentSupport = (doc.XZ_Plane, [""])
sketch13.MapMode = "FlatFace"
sketch13.AttachmentOffset = App.Placement(App.Vector(0, 0, -30), App.Rotation())
sketch13.addGeometry(Part.Circle(App.Vector(0, -4, 0), App.Vector(0, 0, 1), 1.2), False)
sketch13.addGeometry(Part.Circle(App.Vector(135, -81, 0), App.Vector(0, 0, 1), 1.2), False)
sketch13.addGeometry(Part.Circle(App.Vector(0, -81, 0), App.Vector(0, 0, 1), 1.2), False)
sketch13.addGeometry(Part.Circle(App.Vector(135, -4, 0), App.Vector(0, 0, 1), 1.2), False)
sketch13.addConstraint(Sketcher.Constraint("Equal", 0, 1))
sketch13.addConstraint(Sketcher.Constraint("Equal", 1, 2))
sketch13.addConstraint(Sketcher.Constraint("Equal", 2, 3))
sketch13.addConstraint(Sketcher.Constraint("PointOnObject", 0, 3, -2))
sketch13.addConstraint(Sketcher.Constraint("PointOnObject", 2, 3, -2))
sketch13.addConstraint(Sketcher.Constraint("Horizontal", 1, 3, 2, 3))
sketch13.addConstraint(Sketcher.Constraint("Horizontal", 0, 3, 3, 3))
sketch13.addConstraint(Sketcher.Constraint("Vertical", 1, 3, 3, 3))
sketch13.addConstraint(Sketcher.Constraint("Diameter", 0, Q("2.5 mm")))
sketch13.addConstraint(Sketcher.Constraint("DistanceY", 0, 3, -1, 1, Q("4 mm")))
sketch13.addConstraint(Sketcher.Constraint("DistanceX", -1, 1, 1, 3, Q("135 mm")))
sketch13.addConstraint(Sketcher.Constraint("DistanceY", 1, 3, -1, 1, Q("81 mm")))
doc.recompute()
hole3 = doc.addObject("PartDesign::Hole", "Hole002")
body.addObject(hole3)
hole3.Profile = sketch13
hole3.ThreadType = "None"
hole3.Diameter = 2.5
hole3.DepthType = "Dimension"
hole3.Depth = 8.5
hole3.DrillPoint = "Angled"
hole3.DrillPointAngle = 118
hole3.Reversed = True
doc.recompute()

fillet5 = doc.addObject("PartDesign::Fillet", "Fillet004")
body.addObject(fillet5)
fillet5.Base = (hole3, edges_at(hole3, [
    (-4, 15, -85),
    (-4, 15, 0),
    (139, 15, 0),
    (139, 15, -85),
]))
fillet5.Radius = 3

doc.recompute()
